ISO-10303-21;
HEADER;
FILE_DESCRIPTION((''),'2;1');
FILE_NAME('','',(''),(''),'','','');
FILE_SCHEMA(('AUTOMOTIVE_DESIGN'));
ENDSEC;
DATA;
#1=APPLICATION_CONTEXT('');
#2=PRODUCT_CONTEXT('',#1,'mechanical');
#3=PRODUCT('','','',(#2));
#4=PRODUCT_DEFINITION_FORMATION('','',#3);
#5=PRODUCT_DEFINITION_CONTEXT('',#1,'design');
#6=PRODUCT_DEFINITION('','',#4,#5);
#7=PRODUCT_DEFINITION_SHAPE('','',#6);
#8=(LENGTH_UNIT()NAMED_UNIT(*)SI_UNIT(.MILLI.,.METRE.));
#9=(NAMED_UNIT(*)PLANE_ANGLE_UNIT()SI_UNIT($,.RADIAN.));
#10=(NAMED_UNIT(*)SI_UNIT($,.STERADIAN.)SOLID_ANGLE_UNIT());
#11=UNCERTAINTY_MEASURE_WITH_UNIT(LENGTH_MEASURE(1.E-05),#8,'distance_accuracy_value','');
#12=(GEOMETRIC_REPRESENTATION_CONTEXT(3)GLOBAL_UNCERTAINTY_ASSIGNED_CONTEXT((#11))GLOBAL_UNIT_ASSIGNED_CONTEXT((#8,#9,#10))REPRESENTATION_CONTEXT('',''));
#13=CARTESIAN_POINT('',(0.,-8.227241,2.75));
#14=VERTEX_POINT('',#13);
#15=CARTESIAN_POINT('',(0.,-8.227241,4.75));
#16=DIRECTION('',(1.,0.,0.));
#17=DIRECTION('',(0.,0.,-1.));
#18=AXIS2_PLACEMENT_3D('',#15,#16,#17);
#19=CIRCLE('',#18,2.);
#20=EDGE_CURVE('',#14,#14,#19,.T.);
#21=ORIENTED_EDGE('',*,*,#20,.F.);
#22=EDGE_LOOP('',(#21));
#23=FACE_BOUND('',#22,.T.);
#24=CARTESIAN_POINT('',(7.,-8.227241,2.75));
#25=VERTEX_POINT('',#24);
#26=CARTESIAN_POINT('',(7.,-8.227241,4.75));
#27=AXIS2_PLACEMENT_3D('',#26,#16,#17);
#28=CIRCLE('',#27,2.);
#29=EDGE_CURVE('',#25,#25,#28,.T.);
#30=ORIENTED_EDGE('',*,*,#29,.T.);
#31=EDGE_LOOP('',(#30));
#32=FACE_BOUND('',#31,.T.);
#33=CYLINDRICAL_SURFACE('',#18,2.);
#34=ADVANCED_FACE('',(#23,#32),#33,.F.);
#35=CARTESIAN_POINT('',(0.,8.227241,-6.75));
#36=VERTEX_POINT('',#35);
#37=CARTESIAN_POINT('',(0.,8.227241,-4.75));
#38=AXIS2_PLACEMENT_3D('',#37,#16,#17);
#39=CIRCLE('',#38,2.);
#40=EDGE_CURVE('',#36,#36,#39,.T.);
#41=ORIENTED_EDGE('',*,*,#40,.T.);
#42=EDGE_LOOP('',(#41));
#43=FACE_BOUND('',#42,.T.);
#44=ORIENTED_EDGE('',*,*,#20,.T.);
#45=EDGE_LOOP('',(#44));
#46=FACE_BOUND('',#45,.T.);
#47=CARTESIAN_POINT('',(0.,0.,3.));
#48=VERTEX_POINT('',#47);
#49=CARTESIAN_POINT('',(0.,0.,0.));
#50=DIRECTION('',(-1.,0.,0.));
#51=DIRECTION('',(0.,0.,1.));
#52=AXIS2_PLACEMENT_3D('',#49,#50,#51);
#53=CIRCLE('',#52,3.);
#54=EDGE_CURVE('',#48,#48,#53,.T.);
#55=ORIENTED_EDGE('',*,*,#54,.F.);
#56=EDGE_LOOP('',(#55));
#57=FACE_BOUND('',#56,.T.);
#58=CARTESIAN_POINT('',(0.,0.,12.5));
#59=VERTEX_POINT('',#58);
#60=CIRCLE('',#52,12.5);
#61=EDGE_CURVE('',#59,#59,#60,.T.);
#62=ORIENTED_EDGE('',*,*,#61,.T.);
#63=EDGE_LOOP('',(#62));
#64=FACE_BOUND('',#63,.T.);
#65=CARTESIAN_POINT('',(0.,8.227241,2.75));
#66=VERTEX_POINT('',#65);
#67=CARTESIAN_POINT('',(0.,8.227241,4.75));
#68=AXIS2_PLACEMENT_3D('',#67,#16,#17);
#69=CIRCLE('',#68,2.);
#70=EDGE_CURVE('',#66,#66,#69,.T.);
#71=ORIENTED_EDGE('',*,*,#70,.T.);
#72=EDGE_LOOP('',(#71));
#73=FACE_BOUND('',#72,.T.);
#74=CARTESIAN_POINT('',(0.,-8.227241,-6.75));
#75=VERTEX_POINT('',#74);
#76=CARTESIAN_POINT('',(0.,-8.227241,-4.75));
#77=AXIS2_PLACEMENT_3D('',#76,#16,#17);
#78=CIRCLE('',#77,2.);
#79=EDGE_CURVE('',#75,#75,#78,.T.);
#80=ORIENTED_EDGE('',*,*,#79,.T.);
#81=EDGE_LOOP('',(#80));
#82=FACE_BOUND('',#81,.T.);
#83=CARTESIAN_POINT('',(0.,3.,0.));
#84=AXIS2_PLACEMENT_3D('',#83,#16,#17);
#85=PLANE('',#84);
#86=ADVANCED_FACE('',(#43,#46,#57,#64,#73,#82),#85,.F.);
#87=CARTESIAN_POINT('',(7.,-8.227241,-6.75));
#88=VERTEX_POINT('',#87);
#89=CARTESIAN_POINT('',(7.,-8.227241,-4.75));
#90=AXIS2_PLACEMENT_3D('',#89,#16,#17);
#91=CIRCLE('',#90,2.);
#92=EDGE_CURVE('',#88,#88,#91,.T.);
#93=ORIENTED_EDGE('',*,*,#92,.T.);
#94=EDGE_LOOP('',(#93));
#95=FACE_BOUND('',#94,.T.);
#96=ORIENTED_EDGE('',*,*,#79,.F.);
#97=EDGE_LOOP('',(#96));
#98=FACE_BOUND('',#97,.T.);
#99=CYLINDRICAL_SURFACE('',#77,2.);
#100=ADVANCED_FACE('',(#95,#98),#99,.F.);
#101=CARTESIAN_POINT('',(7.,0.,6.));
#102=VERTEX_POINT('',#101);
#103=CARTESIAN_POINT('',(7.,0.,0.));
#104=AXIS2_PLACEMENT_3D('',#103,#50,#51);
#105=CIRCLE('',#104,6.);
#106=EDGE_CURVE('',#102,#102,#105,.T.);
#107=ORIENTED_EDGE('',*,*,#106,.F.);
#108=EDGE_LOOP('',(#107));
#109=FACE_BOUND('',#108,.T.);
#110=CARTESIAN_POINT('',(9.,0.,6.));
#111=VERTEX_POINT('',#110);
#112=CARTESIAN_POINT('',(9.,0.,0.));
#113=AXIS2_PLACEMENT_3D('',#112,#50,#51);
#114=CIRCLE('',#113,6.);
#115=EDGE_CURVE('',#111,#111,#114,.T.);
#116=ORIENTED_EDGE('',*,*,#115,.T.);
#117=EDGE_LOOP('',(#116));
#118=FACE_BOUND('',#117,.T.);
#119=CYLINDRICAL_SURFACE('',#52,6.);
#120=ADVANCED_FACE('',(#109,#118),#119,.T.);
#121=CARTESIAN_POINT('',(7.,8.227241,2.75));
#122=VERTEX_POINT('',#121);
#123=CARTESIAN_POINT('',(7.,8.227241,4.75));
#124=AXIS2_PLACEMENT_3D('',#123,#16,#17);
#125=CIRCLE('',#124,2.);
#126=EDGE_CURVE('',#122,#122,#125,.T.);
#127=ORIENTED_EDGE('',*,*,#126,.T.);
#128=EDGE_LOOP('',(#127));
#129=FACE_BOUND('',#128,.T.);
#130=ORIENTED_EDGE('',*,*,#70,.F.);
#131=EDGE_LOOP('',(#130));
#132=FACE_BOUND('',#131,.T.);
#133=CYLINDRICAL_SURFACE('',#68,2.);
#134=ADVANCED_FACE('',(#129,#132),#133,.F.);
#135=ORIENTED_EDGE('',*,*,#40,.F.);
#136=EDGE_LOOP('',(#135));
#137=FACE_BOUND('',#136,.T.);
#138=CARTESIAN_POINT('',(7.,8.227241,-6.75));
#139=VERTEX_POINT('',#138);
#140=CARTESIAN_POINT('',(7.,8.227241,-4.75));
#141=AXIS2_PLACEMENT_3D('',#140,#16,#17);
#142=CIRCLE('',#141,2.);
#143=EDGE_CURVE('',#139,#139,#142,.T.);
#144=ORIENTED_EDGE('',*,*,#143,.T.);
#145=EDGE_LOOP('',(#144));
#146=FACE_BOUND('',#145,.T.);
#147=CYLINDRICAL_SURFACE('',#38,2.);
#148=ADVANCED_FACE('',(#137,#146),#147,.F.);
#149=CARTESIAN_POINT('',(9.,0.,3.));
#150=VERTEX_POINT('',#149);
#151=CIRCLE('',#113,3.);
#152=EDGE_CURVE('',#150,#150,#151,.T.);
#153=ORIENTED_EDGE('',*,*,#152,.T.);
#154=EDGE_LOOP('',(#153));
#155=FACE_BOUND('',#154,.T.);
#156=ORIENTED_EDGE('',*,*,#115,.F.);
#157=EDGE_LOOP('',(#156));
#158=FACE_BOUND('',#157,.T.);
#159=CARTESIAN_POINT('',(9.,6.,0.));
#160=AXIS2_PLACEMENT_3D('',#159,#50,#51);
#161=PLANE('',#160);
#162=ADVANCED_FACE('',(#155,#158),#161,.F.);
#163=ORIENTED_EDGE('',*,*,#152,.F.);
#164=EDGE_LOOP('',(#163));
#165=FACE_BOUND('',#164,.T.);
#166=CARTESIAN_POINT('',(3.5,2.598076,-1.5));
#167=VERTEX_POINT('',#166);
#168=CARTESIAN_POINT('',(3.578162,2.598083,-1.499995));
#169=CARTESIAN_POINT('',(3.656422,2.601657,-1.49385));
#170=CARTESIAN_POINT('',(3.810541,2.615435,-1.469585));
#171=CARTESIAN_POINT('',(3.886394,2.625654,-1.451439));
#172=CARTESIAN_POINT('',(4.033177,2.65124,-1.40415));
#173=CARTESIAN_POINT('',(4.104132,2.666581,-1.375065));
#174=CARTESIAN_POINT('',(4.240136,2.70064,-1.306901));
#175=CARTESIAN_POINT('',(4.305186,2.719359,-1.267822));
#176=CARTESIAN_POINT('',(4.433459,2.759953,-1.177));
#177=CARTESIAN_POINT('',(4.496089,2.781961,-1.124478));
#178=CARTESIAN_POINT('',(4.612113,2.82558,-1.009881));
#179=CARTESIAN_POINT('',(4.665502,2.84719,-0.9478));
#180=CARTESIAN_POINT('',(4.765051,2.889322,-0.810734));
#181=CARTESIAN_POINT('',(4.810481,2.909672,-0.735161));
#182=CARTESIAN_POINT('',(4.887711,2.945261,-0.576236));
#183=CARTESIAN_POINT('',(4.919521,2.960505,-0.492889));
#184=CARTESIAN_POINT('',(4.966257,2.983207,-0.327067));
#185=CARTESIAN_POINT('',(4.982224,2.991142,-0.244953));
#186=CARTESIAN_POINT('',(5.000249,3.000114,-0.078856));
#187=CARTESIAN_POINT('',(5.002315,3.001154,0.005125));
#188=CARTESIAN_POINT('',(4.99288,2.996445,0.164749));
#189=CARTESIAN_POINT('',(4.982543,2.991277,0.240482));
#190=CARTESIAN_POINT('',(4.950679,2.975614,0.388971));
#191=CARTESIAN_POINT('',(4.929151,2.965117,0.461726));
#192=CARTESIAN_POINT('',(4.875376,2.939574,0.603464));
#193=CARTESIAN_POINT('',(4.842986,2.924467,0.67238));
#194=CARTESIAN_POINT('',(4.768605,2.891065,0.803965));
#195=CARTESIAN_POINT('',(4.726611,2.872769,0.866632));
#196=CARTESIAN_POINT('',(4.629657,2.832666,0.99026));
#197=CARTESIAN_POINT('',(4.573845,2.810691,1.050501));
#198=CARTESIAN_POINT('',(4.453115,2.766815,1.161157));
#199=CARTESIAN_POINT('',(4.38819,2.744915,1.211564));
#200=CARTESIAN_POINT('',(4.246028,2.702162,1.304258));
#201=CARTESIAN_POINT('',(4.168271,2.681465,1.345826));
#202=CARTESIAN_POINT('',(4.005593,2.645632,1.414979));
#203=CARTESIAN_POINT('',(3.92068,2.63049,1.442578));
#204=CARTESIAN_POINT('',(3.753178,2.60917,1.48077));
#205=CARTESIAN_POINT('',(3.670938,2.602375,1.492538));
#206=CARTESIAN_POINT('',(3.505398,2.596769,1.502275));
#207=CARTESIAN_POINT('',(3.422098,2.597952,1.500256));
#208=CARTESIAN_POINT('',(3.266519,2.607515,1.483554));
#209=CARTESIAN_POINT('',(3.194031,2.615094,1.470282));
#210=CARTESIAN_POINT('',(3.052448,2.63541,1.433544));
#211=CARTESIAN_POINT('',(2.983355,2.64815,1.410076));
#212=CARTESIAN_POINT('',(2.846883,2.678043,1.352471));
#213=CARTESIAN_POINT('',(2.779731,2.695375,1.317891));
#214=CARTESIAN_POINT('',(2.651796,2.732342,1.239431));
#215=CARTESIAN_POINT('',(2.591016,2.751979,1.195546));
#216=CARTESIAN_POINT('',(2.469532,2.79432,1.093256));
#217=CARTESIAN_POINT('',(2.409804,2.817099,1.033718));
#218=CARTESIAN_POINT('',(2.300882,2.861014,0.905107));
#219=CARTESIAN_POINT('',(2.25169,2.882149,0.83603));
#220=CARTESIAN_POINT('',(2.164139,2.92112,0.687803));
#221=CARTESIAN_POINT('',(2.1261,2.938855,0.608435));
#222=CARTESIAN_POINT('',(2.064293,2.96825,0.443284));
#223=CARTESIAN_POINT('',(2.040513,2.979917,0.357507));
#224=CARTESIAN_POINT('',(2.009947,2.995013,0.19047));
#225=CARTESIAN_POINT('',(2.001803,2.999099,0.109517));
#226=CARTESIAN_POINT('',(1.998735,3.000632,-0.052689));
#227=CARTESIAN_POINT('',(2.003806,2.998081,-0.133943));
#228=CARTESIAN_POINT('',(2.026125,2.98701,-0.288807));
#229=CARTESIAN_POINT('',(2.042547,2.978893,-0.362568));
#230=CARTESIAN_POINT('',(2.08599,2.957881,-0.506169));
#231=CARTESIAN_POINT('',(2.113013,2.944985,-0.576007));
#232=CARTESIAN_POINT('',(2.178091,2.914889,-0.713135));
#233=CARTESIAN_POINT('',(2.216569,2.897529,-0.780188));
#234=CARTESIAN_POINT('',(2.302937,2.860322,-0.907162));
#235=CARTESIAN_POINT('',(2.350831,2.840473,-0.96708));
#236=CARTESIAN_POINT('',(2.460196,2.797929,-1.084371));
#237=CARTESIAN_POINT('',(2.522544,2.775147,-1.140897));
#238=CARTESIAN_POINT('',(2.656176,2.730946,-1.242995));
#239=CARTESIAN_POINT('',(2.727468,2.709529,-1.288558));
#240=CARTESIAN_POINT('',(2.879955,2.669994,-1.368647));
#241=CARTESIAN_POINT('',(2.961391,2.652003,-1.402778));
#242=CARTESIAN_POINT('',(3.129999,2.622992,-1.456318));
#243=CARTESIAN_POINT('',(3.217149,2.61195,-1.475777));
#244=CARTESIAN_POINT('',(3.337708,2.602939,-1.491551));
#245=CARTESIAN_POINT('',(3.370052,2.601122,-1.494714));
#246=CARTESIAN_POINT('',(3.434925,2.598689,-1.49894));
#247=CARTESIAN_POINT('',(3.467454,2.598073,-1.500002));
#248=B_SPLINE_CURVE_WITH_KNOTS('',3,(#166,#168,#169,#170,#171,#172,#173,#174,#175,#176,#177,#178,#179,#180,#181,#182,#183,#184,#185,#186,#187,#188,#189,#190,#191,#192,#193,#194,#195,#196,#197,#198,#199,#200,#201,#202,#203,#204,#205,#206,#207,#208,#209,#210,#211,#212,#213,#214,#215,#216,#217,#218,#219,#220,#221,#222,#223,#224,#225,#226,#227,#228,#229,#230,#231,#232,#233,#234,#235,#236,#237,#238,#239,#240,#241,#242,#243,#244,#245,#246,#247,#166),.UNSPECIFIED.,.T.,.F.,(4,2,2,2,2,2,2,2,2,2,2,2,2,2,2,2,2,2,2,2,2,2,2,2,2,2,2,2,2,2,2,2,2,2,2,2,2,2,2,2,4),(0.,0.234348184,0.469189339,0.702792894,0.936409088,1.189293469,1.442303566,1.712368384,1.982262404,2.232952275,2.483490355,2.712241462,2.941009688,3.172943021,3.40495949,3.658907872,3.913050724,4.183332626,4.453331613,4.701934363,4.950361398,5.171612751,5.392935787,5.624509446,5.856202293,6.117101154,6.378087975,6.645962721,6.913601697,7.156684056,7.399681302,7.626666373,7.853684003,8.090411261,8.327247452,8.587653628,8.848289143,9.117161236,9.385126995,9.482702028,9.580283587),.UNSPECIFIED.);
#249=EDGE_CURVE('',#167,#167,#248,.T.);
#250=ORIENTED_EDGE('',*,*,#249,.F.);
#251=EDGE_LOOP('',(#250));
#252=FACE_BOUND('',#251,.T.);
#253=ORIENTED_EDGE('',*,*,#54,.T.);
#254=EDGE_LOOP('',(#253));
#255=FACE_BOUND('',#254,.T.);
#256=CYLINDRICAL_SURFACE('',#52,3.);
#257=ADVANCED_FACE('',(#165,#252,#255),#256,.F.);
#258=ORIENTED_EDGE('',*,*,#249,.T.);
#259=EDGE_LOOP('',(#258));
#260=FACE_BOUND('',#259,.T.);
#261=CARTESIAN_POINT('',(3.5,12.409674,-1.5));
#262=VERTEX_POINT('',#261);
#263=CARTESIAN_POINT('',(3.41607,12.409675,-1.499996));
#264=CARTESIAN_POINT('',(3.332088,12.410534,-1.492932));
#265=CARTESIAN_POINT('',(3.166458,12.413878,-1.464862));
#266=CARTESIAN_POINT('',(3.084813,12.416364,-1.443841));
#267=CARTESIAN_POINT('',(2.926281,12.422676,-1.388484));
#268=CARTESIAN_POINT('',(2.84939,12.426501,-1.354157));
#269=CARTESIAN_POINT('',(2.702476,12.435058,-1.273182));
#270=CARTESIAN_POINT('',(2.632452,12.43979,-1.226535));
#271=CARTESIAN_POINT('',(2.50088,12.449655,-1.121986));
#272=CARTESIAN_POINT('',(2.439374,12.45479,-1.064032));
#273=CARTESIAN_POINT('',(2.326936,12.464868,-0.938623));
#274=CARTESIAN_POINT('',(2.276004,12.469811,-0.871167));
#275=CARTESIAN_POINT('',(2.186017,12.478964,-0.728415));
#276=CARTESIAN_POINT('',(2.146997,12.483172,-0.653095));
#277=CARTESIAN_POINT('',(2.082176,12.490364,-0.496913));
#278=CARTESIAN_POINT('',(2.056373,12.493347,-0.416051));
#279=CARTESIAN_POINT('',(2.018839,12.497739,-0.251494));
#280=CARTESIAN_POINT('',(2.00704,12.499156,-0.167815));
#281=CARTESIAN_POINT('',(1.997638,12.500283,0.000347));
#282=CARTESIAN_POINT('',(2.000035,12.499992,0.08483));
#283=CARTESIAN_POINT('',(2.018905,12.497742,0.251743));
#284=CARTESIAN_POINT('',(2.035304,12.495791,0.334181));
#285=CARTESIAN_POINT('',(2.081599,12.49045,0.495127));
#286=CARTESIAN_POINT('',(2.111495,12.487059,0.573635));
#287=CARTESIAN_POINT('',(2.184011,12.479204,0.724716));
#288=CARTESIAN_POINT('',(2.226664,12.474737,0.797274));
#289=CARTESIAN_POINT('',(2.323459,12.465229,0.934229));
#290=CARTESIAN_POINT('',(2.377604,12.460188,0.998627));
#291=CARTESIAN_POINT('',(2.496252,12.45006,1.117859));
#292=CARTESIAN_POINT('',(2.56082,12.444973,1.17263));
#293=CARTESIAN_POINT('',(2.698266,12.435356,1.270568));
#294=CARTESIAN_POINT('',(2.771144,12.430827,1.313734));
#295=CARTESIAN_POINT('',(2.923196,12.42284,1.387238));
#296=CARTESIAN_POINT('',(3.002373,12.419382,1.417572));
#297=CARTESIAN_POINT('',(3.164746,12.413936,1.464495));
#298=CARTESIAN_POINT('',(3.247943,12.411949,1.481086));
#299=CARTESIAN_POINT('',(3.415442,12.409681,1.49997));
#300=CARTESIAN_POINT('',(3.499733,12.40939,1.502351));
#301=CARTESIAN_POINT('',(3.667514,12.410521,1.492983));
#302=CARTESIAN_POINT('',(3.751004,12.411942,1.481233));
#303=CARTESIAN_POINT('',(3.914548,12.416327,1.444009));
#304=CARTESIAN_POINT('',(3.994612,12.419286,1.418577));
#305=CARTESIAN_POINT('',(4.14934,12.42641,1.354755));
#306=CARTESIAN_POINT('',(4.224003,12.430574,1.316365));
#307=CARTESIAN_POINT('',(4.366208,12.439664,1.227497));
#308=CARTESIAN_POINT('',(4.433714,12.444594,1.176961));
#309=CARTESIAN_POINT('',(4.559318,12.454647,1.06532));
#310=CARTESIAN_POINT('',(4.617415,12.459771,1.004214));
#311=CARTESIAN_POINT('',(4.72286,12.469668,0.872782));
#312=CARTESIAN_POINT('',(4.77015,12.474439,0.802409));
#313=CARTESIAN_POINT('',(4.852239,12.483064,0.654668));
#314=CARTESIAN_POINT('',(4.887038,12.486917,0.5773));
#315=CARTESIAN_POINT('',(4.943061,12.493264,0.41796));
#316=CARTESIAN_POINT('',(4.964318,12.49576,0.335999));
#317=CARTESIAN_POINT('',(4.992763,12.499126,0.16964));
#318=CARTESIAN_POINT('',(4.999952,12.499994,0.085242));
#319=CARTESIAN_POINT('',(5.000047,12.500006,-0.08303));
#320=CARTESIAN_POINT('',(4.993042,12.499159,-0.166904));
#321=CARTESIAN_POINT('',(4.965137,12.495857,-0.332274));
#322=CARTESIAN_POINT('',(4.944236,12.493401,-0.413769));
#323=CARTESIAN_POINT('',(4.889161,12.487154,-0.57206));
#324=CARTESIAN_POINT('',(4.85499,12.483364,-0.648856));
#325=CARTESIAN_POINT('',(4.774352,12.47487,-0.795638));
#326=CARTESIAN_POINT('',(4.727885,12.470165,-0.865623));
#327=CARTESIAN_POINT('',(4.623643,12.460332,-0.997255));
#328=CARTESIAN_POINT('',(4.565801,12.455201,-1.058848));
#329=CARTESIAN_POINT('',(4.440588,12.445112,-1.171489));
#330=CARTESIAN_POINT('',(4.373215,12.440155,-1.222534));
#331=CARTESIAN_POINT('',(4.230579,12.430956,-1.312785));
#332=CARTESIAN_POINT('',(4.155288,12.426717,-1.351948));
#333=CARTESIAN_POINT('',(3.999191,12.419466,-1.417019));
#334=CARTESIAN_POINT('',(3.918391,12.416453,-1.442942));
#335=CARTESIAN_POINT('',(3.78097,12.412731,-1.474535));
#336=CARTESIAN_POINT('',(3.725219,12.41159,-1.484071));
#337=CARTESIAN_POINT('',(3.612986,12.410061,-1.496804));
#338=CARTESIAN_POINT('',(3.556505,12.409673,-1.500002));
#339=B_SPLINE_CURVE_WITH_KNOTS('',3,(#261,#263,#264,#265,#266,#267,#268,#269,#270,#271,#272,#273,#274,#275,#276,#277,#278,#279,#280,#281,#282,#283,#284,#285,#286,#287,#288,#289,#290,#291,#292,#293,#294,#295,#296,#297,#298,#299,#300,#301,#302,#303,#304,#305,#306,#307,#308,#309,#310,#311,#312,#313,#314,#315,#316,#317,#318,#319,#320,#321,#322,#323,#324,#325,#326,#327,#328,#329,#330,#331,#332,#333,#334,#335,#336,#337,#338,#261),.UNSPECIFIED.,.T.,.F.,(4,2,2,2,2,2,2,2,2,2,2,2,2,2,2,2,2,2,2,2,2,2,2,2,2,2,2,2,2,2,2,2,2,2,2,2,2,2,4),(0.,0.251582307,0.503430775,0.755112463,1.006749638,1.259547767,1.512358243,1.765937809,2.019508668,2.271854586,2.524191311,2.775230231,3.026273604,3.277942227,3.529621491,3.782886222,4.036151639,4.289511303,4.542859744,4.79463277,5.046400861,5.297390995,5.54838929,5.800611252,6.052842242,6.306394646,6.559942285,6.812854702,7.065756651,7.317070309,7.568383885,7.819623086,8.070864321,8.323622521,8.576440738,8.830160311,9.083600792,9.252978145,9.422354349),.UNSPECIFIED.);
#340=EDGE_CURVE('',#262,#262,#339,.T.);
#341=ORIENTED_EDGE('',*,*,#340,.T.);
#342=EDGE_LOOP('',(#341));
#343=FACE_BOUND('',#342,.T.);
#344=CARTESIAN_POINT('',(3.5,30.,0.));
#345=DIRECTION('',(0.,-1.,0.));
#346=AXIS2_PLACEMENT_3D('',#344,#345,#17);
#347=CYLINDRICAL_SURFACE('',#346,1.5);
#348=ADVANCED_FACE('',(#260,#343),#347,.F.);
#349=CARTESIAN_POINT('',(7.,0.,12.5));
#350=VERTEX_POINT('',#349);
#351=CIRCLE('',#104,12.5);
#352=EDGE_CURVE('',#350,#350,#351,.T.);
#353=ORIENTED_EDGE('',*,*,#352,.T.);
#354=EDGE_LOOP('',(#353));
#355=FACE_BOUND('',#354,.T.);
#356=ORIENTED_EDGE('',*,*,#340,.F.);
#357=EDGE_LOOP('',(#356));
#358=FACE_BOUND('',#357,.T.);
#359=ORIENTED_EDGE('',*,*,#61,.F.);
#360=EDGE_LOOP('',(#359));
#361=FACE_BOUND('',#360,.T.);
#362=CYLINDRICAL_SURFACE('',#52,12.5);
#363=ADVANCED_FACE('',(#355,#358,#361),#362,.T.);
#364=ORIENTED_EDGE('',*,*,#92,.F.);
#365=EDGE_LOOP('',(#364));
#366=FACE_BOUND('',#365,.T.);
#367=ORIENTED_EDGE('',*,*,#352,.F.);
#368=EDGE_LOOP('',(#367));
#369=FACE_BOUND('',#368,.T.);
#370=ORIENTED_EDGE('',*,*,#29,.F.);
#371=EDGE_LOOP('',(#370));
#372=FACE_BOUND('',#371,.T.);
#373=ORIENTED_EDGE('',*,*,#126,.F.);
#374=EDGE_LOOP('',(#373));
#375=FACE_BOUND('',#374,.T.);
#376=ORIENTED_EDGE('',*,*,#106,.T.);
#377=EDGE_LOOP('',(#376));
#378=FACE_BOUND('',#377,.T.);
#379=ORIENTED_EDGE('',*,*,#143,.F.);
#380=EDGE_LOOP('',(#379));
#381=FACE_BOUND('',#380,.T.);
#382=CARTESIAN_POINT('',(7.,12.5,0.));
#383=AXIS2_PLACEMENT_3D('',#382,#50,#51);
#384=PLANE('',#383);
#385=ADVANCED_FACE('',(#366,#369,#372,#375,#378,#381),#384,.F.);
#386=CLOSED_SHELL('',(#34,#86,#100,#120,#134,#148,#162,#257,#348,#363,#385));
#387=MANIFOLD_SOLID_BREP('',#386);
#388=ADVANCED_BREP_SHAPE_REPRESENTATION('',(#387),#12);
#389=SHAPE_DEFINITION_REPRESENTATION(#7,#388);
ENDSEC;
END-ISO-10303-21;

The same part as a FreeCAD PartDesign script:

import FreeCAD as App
import Part
import Sketcher
Q = App.Units.Quantity

doc = App.newDocument("Part")
body = doc.addObject("PartDesign::Body", "Body")

# Sketch on XY plane
sketch1 = doc.addObject("Sketcher::SketchObject", "Sketch")
body.addObject(sketch1)
sketch1.AttachmentSupport = (doc.XY_Plane, [""])
sketch1.MapMode = "FlatFace"
sketch1.addGeometry(Part.LineSegment(App.Vector(0, 12.5, 0), App.Vector(0, 3, 0)), False)
sketch1.addGeometry(Part.LineSegment(App.Vector(0, 3, 0), App.Vector(9, 3, 0)), False)
sketch1.addGeometry(Part.LineSegment(App.Vector(9, 3, 0), App.Vector(9, 6, 0)), False)
sketch1.addGeometry(Part.LineSegment(App.Vector(9, 6, 0), App.Vector(7, 6, 0)), False)
sketch1.addGeometry(Part.LineSegment(App.Vector(7, 6, 0), App.Vector(7, 12.5, 0)), False)
sketch1.addGeometry(Part.LineSegment(App.Vector(7, 12.5, 0), App.Vector(0, 12.5, 0)), False)
sketch1.addConstraint(Sketcher.Constraint("Coincident", 0, 2, 1, 1))
sketch1.addConstraint(Sketcher.Constraint("Coincident", 1, 2, 2, 1))
sketch1.addConstraint(Sketcher.Constraint("Coincident", 2, 2, 3, 1))
sketch1.addConstraint(Sketcher.Constraint("Coincident", 3, 2, 4, 1))
sketch1.addConstraint(Sketcher.Constraint("Coincident", 4, 2, 5, 1))
sketch1.addConstraint(Sketcher.Constraint("Coincident", 5, 2, 0, 1))
sketch1.addConstraint(Sketcher.Constraint("Vertical", 0))
sketch1.addConstraint(Sketcher.Constraint("Horizontal", 1))
sketch1.addConstraint(Sketcher.Constraint("Vertical", 2))
sketch1.addConstraint(Sketcher.Constraint("Horizontal", 3))
sketch1.addConstraint(Sketcher.Constraint("Vertical", 4))
sketch1.addConstraint(Sketcher.Constraint("Horizontal", 5))
sketch1.addConstraint(Sketcher.Constraint("PointOnObject", 0, 2, -2))
sketch1.addConstraint(Sketcher.Constraint("DistanceX", 1, 1, 1, 2, Q("9 mm")))
sketch1.addConstraint(Sketcher.Constraint("DistanceX", 3, 2, 3, 1, Q("2 mm")))
sketch1.addConstraint(Sketcher.Constraint("DistanceY", 2, 1, 2, 2, Q("3 mm")))
sketch1.addConstraint(Sketcher.Constraint("DistanceY", 0, 2, 0, 1, Q("9.5 mm")))
sketch1.addConstraint(Sketcher.Constraint("DistanceY", -1, 1, 0, 2, Q("3 mm")))
revolution = doc.addObject("PartDesign::Revolution", "Revolution")
body.addObject(revolution)
revolution.Profile = sketch1
revolution.ReferenceAxis = (sketch1, ["H_Axis"])
revolution.Angle = 360

# Sketch on YZ plane
sketch2 = doc.addObject("Sketcher::SketchObject", "Sketch001")
body.addObject(sketch2)
sketch2.AttachmentSupport = (doc.YZ_Plane, [""])
sketch2.MapMode = "FlatFace"
sketch2.AttachmentOffset = App.Placement(App.Vector(0, 0, 7), App.Rotation())
sketch2.addGeometry(Part.Circle(App.Vector(8.2, 4.8, 0), App.Vector(0, 0, 1), 2), False)
sketch2.addGeometry(Part.Circle(App.Vector(8.2, -4.8, 0), App.Vector(0, 0, 1), 2), False)
sketch2.addGeometry(Part.Circle(App.Vector(-8.2, 4.8, 0), App.Vector(0, 0, 1), 2), False)
sketch2.addGeometry(Part.Circle(App.Vector(-8.2, -4.8, 0), App.Vector(0, 0, 1), 2), False)
sketch2.addConstraint(Sketcher.Constraint("Equal", 0, 1))
sketch2.addConstraint(Sketcher.Constraint("Equal", 1, 2))
sketch2.addConstraint(Sketcher.Constraint("Equal", 2, 3))
sketch2.addConstraint(Sketcher.Constraint("Symmetric", 1, 3, 2, 3, -1, 1))
sketch2.addConstraint(Sketcher.Constraint("Symmetric", 0, 3, 3, 3, -1, 1))
sketch2.addConstraint(Sketcher.Constraint("Symmetric", 0, 3, 2, 3, -2))
sketch2.addConstraint(Sketcher.Constraint("Diameter", 0, Q("4 mm")))
sketch2.addConstraint(Sketcher.Constraint("DistanceY", 1, 3, 0, 3, Q("9.5 mm")))
sketch2.addConstraint(Sketcher.Constraint("DistanceX", -1, 1, 0, 3, Q("8.227241 mm")))
pocket1 = doc.addObject("PartDesign::Pocket", "Pocket")
body.addObject(pocket1)
pocket1.Profile = sketch2
pocket1.Type = "ThroughAll"

# Sketch on XZ plane
sketch3 = doc.addObject("Sketcher::SketchObject", "Sketch002")
body.addObject(sketch3)
sketch3.AttachmentSupport = (doc.XZ_Plane, [""])
sketch3.MapMode = "FlatFace"
sketch3.addGeometry(Part.Circle(App.Vector(3.5, 0, 0), App.Vector(0, 0, 1), 1.5), False)
sketch3.addConstraint(Sketcher.Constraint("PointOnObject", 0, 3, -1))
sketch3.addConstraint(Sketcher.Constraint("Diameter", 0, Q("3 mm")))
sketch3.addConstraint(Sketcher.Constraint("DistanceX", -1, 1, 0, 3, Q("3.5 mm")))
pocket2 = doc.addObject("PartDesign::Pocket", "Pocket001")
body.addObject(pocket2)
pocket2.Profile = sketch3
pocket2.Length = 30

doc.recompute()
